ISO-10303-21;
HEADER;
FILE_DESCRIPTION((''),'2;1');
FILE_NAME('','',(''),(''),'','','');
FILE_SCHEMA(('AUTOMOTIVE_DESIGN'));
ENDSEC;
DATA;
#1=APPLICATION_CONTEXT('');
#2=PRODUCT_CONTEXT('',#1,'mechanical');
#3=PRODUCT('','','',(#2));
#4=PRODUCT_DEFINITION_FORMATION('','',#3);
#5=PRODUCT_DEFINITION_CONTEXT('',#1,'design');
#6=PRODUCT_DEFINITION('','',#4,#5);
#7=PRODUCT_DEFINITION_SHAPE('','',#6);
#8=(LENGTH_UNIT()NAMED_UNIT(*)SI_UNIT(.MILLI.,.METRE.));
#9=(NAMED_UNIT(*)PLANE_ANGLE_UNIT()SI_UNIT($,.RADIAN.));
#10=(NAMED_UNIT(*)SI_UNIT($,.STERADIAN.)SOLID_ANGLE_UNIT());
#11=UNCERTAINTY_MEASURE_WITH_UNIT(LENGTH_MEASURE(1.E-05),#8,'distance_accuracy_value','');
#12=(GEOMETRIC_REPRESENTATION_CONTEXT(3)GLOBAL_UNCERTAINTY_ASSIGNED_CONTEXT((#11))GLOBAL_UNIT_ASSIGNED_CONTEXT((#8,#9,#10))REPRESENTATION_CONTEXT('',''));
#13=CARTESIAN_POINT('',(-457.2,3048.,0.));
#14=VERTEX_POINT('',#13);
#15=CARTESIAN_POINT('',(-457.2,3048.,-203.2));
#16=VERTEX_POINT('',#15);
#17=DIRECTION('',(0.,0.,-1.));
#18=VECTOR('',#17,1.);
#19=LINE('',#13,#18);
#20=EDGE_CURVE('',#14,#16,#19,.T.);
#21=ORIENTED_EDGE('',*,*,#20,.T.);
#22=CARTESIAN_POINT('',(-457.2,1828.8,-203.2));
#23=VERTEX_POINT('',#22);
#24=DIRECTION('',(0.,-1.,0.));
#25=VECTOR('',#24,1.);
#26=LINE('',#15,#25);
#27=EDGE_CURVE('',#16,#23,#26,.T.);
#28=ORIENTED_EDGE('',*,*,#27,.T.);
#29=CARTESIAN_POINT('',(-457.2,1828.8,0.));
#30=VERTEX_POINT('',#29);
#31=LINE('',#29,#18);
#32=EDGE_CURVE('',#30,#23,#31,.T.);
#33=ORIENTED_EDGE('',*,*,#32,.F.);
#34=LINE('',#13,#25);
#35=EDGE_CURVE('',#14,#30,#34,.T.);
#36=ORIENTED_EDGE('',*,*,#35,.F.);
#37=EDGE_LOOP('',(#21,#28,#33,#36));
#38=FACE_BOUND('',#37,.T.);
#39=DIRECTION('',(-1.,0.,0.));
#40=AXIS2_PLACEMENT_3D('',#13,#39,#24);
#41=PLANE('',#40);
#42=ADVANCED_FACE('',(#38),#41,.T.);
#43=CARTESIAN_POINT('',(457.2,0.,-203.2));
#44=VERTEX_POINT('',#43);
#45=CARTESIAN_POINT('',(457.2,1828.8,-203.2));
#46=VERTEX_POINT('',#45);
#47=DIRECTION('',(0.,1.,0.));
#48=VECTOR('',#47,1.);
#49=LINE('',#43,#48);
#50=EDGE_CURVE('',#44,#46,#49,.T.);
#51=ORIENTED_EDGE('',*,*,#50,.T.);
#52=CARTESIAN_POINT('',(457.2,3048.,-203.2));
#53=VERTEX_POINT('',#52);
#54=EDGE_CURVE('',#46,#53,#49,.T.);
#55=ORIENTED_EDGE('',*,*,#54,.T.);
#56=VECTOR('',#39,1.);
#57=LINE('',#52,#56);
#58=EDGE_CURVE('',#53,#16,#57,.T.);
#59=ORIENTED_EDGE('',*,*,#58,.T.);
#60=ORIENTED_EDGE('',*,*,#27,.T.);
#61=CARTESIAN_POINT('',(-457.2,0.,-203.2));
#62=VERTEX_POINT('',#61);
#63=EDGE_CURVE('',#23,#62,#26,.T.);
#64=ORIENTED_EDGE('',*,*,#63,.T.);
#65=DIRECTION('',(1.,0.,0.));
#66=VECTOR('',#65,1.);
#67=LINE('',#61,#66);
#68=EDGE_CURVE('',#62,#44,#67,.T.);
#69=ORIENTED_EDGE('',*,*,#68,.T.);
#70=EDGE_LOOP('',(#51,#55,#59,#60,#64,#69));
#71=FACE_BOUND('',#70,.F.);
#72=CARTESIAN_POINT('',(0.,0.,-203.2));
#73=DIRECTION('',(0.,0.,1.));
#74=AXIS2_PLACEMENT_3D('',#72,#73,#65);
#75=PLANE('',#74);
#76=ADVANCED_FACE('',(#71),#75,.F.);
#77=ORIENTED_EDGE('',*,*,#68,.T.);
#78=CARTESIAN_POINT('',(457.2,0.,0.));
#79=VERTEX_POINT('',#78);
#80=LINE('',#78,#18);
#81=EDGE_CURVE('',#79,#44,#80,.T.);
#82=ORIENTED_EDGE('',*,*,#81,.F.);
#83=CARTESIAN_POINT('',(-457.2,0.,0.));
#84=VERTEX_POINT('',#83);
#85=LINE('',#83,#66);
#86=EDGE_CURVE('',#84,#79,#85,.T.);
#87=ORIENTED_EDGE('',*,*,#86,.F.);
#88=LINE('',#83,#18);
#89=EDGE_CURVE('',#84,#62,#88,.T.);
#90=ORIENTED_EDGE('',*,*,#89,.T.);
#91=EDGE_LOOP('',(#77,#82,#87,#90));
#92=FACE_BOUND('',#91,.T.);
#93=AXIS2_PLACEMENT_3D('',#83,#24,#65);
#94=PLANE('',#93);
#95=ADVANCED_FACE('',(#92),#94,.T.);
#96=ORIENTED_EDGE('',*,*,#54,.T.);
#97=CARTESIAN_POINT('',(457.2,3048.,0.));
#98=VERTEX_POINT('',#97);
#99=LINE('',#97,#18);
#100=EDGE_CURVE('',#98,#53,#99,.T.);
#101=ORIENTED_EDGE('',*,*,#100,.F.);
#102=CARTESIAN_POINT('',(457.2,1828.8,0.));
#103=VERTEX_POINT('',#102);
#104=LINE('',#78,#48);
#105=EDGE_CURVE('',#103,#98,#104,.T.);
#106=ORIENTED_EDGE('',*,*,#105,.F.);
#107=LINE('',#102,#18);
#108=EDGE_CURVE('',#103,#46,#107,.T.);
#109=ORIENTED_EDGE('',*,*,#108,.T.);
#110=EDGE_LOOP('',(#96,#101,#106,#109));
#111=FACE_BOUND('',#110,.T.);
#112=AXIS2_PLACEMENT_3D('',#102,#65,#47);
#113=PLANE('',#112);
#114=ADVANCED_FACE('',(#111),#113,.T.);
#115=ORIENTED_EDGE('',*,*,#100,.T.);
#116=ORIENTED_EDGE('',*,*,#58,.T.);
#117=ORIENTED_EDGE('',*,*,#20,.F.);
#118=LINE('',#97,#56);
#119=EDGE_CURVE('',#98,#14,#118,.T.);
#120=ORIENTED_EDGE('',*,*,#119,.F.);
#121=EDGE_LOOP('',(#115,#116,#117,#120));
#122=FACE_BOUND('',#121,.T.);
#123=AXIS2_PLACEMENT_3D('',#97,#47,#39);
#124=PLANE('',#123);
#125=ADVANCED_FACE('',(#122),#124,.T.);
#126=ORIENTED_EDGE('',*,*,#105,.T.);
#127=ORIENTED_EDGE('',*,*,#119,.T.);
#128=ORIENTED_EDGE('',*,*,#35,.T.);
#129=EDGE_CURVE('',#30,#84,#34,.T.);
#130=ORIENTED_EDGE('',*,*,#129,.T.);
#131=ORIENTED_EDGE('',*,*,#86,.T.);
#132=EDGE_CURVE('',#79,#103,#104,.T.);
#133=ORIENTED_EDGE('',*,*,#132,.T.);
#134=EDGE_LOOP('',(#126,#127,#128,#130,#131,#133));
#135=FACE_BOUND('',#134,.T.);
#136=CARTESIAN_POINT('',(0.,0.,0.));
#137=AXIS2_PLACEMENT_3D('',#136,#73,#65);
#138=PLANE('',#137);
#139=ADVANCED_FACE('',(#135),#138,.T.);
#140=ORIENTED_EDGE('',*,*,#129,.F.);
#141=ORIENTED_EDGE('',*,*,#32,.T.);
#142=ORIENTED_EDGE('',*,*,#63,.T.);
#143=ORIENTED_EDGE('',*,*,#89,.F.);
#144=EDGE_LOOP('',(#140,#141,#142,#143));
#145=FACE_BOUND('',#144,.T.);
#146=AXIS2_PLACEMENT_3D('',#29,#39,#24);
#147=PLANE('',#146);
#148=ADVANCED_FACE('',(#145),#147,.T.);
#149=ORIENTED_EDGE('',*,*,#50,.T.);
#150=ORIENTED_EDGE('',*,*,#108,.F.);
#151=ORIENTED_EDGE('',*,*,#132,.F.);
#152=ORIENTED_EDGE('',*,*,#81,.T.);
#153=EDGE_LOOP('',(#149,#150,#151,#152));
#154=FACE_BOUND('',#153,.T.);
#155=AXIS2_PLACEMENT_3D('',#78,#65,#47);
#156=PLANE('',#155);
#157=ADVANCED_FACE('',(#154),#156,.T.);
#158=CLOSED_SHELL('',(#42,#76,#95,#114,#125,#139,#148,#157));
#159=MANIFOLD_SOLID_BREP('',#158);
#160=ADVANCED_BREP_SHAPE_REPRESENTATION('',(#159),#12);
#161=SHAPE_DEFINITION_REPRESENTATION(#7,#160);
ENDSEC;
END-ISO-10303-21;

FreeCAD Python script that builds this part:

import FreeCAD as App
import Part
import Sketcher

V = App.Vector
Q = App.Units.Quantity


def add_polygon(sketch, points):
    """Adds a closed chain of lines whose ends are joined by coincident constraints."""
    first, n = sketch.GeometryCount, len(points)
    for a, b in zip(points, points[1:] + points[:1]):
        sketch.addGeometry(Part.LineSegment(App.Vector(*a, 0), App.Vector(*b, 0)), False)
    for i in range(n):
        sketch.addConstraint(Sketcher.Constraint("Coincident", first + i, 2, first + (i + 1) % n, 1))

doc = App.newDocument("Part")
params = doc.addObject("Spreadsheet::Sheet", "Params")
for row, (alias, value) in enumerate([
    ("sketch1_width", "36 in"),
    ("sketch1_height", "120 in"),
    ("pad1_length", "8 in"),
], start=1):
    params.set(f"A{row}", alias)
    params.set(f"B{row}", "=" + value)
    params.setAlias(f"B{row}", alias)

body = doc.addObject("PartDesign::Body", "Body")

# Sketch on XY plane
sketch1 = body.newObject("Sketcher::SketchObject", "Sketch")
sketch1.AttachmentSupport = (doc.getObject("XY_Plane"), [""])
sketch1.MapMode = "FlatFace"
add_polygon(sketch1, [(-457, 3048), (-457, 0), (457, 0), (457, 3048)])  # lines 0-3
sketch1.addConstraint([
    Sketcher.Constraint("Vertical", 0),
    Sketcher.Constraint("Horizontal", 1),
    Sketcher.Constraint("Vertical", 2),
    Sketcher.Constraint("Horizontal", 3),
    Sketcher.Constraint("Symmetric", 0, 2, 1, 2, -1, 1),
    Sketcher.Constraint("DistanceX", 1, 1, 1, 2, Q("36 in")),
    Sketcher.Constraint("DistanceY", 0, 2, 0, 1, Q("120 in")),
])
sketch1.setExpression("Constraints[9]", "Params.sketch1_width")
sketch1.setExpression("Constraints[10]", "Params.sketch1_height")
pad1 = body.newObject("PartDesign::Pad", "Pad")
pad1.Profile = sketch1
pad1.setExpression("Length", "Params.pad1_length")
pad1.Reversed = True

doc.recompute()
